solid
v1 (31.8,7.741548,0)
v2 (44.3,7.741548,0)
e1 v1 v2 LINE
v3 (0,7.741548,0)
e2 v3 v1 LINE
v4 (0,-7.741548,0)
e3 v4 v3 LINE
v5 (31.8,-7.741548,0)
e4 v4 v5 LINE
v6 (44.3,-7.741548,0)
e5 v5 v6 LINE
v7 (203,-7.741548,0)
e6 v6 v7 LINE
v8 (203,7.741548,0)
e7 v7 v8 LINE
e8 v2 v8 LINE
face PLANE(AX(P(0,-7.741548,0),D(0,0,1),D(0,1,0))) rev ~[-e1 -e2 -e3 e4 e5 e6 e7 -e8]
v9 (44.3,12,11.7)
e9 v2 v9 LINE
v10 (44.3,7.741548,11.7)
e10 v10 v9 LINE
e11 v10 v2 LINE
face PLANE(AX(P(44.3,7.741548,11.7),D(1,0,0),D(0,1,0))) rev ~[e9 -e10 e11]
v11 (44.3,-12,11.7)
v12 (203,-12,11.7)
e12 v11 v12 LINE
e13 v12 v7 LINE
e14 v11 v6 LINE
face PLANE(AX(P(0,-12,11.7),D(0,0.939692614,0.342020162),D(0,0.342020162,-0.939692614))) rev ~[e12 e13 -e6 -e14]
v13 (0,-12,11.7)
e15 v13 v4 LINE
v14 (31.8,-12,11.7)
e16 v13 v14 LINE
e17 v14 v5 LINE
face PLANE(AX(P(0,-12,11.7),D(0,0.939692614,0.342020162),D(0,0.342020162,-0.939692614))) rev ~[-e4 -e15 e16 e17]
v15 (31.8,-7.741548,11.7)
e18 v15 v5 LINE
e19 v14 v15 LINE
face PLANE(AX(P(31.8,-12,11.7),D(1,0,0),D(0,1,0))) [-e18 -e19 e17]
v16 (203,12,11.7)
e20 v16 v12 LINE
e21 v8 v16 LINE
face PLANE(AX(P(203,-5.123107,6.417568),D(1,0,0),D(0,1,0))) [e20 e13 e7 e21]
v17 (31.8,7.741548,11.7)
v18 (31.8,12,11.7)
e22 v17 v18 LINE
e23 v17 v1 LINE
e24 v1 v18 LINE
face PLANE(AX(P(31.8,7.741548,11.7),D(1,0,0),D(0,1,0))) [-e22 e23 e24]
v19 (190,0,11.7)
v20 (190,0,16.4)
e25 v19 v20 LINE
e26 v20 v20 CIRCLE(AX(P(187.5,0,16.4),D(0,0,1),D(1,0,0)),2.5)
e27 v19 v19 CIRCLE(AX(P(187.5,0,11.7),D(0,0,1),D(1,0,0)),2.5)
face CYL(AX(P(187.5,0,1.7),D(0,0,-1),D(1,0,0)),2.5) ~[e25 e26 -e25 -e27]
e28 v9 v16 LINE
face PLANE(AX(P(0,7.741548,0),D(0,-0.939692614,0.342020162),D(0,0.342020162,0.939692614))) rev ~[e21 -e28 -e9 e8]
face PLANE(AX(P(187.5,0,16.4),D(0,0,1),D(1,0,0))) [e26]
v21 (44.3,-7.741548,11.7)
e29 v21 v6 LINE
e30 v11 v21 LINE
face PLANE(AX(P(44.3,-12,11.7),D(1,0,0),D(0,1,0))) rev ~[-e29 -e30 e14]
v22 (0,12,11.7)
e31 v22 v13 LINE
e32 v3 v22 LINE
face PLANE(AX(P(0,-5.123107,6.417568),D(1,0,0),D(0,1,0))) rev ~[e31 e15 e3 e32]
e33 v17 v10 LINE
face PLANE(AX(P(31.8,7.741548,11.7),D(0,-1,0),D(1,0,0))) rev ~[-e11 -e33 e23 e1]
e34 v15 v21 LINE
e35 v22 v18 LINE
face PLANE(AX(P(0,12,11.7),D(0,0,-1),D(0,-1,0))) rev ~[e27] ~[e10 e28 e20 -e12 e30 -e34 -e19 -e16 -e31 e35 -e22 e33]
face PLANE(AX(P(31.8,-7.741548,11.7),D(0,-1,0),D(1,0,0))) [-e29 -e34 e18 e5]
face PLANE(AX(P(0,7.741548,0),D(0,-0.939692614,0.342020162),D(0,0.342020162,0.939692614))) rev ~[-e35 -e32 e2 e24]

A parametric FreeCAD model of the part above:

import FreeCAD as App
import Part
import Sketcher
from FreeCAD import Vector
Q = App.Units.Quantity


def add_polygon(sketch, points):
    """Adds a closed chain of lines whose ends are joined by coincident constraints."""
    first, n = sketch.GeometryCount, len(points)
    for a, b in zip(points, points[1:] + points[:1]):
        sketch.addGeometry(Part.LineSegment(App.Vector(*a, 0), App.Vector(*b, 0)), False)
    for i in range(n):
        sketch.addConstraint(Sketcher.Constraint("Coincident", first + i, 2, first + (i + 1) % n, 1))

doc = App.newDocument("Part")
body = doc.addObject("PartDesign::Body", "Body")

# Sketch on YZ plane
sketch1 = body.newObject("Sketcher::SketchObject", "Sketch")
sketch1.AttachmentSupport = (doc.getObject("YZ_Plane"), [""])
sketch1.MapMode = "FlatFace"
add_polygon(sketch1, [(-12, 11.7), (-7.741548, 0), (7.741548, 0), (12, 11.7)])  # lines 0-3
sketch1.addConstraint([
    Sketcher.Constraint("Horizontal", 1),
    Sketcher.Constraint("Horizontal", 3),
    Sketcher.Constraint("Symmetric", 0, 2, 1, 2, -1, 1),
    Sketcher.Constraint("Equal", 0, 2),
    Sketcher.Constraint("DistanceX", 3, 2, 3, 1, 24.0),
    Sketcher.Constraint("Angle", 0, Q("-69.999999 deg")),
    Sketcher.Constraint("DistanceY", -1, 1, 2, 2, 11.7),
])
pad1 = body.newObject("PartDesign::Pad", "Pad")
pad1.Profile = sketch1
pad1.Length = 203

# Sketch on XY plane
sketch2 = body.newObject("Sketcher::SketchObject", "Sketch001")
sketch2.AttachmentSupport = (doc.getObject("XY_Plane"), [""])
sketch2.MapMode = "FlatFace"
sketch2.AttachmentOffset = App.Placement(Vector(0, 0, 11.7), App.Rotation())
sketch2.addGeometry(Part.Circle(Vector(187.5, 0, 0), Vector(0, 0, 1), 2.5), False)
sketch2.addConstraint([
    Sketcher.Constraint("PointOnObject", 0, 3, -1),
    Sketcher.Constraint("Diameter", 0, 5.0),
    Sketcher.Constraint("DistanceX", -1, 1, 0, 3, 187.5),
])
pocket1 = body.newObject("PartDesign::Pocket", "Pocket")
pocket1.Profile = sketch2
pocket1.Length = 10

# Sketch on XY plane
sketch3 = body.newObject("Sketcher::SketchObject", "Sketch002")
sketch3.AttachmentSupport = (doc.getObject("XY_Plane"), [""])
sketch3.MapMode = "FlatFace"
sketch3.AttachmentOffset = App.Placement(Vector(0, 0, 11.7), App.Rotation())
add_polygon(sketch3, [(31.8, 12), (31.8, 7.741548), (44.3, 7.741548), (44.3, 12)])  # lines 0-3
add_polygon(sketch3, [(31.8, -7.741548), (31.8, -12), (44.3, -12), (44.3, -7.741548)])  # lines 4-7
sketch3.addConstraint([
    Sketcher.Constraint("Vertical", 0),
    Sketcher.Constraint("Horizontal", 1),
    Sketcher.Constraint("Vertical", 2),
    Sketcher.Constraint("Horizontal", 3),
    Sketcher.Constraint("Vertical", 4),
    Sketcher.Constraint("Horizontal", 5),
    Sketcher.Constraint("Vertical", 6),
    Sketcher.Constraint("Horizontal", 7),
    Sketcher.Constraint("Symmetric", 3, 2, 4, 2, -1),
    Sketcher.Constraint("Symmetric", 1, 2, 6, 2, -1),
    Sketcher.Constraint("DistanceX", 1, 1, 1, 2, 12.5),
    Sketcher.Constraint("DistanceY", -1, 1, 2, 2, 12.0),
    Sketcher.Constraint("DistanceX", -1, 1, 0, 2, 31.8),
    Sketcher.Constraint("DistanceY", 0, 2, 0, 1, 4.258452),
])
pocket2 = body.newObject("PartDesign::Pocket", "Pocket001")
pocket2.Profile = sketch3
pocket2.Type = "ThroughAll"

# Sketch on XY plane
sketch4 = body.newObject("Sketcher::SketchObject", "Sketch003")
sketch4.AttachmentSupport = (doc.getObject("XY_Plane"), [""])
sketch4.MapMode = "FlatFace"
sketch4.AttachmentOffset = App.Placement(Vector(0, 0, 1.7), App.Rotation())
sketch4.addGeometry(Part.Circle(Vector(187.5, 0, 0), Vector(0, 0, 1), 2.5), False)
sketch4.addConstraint([
    Sketcher.Constraint("PointOnObject", 0, 3, -1),
    Sketcher.Constraint("Diameter", 0, 5.0),
    Sketcher.Constraint("DistanceX", -1, 1, 0, 3, 187.5),
])
pad2 = body.newObject("PartDesign::Pad", "Pad001")
pad2.Profile = sketch4
pad2.Length = 14.7

doc.recompute()
